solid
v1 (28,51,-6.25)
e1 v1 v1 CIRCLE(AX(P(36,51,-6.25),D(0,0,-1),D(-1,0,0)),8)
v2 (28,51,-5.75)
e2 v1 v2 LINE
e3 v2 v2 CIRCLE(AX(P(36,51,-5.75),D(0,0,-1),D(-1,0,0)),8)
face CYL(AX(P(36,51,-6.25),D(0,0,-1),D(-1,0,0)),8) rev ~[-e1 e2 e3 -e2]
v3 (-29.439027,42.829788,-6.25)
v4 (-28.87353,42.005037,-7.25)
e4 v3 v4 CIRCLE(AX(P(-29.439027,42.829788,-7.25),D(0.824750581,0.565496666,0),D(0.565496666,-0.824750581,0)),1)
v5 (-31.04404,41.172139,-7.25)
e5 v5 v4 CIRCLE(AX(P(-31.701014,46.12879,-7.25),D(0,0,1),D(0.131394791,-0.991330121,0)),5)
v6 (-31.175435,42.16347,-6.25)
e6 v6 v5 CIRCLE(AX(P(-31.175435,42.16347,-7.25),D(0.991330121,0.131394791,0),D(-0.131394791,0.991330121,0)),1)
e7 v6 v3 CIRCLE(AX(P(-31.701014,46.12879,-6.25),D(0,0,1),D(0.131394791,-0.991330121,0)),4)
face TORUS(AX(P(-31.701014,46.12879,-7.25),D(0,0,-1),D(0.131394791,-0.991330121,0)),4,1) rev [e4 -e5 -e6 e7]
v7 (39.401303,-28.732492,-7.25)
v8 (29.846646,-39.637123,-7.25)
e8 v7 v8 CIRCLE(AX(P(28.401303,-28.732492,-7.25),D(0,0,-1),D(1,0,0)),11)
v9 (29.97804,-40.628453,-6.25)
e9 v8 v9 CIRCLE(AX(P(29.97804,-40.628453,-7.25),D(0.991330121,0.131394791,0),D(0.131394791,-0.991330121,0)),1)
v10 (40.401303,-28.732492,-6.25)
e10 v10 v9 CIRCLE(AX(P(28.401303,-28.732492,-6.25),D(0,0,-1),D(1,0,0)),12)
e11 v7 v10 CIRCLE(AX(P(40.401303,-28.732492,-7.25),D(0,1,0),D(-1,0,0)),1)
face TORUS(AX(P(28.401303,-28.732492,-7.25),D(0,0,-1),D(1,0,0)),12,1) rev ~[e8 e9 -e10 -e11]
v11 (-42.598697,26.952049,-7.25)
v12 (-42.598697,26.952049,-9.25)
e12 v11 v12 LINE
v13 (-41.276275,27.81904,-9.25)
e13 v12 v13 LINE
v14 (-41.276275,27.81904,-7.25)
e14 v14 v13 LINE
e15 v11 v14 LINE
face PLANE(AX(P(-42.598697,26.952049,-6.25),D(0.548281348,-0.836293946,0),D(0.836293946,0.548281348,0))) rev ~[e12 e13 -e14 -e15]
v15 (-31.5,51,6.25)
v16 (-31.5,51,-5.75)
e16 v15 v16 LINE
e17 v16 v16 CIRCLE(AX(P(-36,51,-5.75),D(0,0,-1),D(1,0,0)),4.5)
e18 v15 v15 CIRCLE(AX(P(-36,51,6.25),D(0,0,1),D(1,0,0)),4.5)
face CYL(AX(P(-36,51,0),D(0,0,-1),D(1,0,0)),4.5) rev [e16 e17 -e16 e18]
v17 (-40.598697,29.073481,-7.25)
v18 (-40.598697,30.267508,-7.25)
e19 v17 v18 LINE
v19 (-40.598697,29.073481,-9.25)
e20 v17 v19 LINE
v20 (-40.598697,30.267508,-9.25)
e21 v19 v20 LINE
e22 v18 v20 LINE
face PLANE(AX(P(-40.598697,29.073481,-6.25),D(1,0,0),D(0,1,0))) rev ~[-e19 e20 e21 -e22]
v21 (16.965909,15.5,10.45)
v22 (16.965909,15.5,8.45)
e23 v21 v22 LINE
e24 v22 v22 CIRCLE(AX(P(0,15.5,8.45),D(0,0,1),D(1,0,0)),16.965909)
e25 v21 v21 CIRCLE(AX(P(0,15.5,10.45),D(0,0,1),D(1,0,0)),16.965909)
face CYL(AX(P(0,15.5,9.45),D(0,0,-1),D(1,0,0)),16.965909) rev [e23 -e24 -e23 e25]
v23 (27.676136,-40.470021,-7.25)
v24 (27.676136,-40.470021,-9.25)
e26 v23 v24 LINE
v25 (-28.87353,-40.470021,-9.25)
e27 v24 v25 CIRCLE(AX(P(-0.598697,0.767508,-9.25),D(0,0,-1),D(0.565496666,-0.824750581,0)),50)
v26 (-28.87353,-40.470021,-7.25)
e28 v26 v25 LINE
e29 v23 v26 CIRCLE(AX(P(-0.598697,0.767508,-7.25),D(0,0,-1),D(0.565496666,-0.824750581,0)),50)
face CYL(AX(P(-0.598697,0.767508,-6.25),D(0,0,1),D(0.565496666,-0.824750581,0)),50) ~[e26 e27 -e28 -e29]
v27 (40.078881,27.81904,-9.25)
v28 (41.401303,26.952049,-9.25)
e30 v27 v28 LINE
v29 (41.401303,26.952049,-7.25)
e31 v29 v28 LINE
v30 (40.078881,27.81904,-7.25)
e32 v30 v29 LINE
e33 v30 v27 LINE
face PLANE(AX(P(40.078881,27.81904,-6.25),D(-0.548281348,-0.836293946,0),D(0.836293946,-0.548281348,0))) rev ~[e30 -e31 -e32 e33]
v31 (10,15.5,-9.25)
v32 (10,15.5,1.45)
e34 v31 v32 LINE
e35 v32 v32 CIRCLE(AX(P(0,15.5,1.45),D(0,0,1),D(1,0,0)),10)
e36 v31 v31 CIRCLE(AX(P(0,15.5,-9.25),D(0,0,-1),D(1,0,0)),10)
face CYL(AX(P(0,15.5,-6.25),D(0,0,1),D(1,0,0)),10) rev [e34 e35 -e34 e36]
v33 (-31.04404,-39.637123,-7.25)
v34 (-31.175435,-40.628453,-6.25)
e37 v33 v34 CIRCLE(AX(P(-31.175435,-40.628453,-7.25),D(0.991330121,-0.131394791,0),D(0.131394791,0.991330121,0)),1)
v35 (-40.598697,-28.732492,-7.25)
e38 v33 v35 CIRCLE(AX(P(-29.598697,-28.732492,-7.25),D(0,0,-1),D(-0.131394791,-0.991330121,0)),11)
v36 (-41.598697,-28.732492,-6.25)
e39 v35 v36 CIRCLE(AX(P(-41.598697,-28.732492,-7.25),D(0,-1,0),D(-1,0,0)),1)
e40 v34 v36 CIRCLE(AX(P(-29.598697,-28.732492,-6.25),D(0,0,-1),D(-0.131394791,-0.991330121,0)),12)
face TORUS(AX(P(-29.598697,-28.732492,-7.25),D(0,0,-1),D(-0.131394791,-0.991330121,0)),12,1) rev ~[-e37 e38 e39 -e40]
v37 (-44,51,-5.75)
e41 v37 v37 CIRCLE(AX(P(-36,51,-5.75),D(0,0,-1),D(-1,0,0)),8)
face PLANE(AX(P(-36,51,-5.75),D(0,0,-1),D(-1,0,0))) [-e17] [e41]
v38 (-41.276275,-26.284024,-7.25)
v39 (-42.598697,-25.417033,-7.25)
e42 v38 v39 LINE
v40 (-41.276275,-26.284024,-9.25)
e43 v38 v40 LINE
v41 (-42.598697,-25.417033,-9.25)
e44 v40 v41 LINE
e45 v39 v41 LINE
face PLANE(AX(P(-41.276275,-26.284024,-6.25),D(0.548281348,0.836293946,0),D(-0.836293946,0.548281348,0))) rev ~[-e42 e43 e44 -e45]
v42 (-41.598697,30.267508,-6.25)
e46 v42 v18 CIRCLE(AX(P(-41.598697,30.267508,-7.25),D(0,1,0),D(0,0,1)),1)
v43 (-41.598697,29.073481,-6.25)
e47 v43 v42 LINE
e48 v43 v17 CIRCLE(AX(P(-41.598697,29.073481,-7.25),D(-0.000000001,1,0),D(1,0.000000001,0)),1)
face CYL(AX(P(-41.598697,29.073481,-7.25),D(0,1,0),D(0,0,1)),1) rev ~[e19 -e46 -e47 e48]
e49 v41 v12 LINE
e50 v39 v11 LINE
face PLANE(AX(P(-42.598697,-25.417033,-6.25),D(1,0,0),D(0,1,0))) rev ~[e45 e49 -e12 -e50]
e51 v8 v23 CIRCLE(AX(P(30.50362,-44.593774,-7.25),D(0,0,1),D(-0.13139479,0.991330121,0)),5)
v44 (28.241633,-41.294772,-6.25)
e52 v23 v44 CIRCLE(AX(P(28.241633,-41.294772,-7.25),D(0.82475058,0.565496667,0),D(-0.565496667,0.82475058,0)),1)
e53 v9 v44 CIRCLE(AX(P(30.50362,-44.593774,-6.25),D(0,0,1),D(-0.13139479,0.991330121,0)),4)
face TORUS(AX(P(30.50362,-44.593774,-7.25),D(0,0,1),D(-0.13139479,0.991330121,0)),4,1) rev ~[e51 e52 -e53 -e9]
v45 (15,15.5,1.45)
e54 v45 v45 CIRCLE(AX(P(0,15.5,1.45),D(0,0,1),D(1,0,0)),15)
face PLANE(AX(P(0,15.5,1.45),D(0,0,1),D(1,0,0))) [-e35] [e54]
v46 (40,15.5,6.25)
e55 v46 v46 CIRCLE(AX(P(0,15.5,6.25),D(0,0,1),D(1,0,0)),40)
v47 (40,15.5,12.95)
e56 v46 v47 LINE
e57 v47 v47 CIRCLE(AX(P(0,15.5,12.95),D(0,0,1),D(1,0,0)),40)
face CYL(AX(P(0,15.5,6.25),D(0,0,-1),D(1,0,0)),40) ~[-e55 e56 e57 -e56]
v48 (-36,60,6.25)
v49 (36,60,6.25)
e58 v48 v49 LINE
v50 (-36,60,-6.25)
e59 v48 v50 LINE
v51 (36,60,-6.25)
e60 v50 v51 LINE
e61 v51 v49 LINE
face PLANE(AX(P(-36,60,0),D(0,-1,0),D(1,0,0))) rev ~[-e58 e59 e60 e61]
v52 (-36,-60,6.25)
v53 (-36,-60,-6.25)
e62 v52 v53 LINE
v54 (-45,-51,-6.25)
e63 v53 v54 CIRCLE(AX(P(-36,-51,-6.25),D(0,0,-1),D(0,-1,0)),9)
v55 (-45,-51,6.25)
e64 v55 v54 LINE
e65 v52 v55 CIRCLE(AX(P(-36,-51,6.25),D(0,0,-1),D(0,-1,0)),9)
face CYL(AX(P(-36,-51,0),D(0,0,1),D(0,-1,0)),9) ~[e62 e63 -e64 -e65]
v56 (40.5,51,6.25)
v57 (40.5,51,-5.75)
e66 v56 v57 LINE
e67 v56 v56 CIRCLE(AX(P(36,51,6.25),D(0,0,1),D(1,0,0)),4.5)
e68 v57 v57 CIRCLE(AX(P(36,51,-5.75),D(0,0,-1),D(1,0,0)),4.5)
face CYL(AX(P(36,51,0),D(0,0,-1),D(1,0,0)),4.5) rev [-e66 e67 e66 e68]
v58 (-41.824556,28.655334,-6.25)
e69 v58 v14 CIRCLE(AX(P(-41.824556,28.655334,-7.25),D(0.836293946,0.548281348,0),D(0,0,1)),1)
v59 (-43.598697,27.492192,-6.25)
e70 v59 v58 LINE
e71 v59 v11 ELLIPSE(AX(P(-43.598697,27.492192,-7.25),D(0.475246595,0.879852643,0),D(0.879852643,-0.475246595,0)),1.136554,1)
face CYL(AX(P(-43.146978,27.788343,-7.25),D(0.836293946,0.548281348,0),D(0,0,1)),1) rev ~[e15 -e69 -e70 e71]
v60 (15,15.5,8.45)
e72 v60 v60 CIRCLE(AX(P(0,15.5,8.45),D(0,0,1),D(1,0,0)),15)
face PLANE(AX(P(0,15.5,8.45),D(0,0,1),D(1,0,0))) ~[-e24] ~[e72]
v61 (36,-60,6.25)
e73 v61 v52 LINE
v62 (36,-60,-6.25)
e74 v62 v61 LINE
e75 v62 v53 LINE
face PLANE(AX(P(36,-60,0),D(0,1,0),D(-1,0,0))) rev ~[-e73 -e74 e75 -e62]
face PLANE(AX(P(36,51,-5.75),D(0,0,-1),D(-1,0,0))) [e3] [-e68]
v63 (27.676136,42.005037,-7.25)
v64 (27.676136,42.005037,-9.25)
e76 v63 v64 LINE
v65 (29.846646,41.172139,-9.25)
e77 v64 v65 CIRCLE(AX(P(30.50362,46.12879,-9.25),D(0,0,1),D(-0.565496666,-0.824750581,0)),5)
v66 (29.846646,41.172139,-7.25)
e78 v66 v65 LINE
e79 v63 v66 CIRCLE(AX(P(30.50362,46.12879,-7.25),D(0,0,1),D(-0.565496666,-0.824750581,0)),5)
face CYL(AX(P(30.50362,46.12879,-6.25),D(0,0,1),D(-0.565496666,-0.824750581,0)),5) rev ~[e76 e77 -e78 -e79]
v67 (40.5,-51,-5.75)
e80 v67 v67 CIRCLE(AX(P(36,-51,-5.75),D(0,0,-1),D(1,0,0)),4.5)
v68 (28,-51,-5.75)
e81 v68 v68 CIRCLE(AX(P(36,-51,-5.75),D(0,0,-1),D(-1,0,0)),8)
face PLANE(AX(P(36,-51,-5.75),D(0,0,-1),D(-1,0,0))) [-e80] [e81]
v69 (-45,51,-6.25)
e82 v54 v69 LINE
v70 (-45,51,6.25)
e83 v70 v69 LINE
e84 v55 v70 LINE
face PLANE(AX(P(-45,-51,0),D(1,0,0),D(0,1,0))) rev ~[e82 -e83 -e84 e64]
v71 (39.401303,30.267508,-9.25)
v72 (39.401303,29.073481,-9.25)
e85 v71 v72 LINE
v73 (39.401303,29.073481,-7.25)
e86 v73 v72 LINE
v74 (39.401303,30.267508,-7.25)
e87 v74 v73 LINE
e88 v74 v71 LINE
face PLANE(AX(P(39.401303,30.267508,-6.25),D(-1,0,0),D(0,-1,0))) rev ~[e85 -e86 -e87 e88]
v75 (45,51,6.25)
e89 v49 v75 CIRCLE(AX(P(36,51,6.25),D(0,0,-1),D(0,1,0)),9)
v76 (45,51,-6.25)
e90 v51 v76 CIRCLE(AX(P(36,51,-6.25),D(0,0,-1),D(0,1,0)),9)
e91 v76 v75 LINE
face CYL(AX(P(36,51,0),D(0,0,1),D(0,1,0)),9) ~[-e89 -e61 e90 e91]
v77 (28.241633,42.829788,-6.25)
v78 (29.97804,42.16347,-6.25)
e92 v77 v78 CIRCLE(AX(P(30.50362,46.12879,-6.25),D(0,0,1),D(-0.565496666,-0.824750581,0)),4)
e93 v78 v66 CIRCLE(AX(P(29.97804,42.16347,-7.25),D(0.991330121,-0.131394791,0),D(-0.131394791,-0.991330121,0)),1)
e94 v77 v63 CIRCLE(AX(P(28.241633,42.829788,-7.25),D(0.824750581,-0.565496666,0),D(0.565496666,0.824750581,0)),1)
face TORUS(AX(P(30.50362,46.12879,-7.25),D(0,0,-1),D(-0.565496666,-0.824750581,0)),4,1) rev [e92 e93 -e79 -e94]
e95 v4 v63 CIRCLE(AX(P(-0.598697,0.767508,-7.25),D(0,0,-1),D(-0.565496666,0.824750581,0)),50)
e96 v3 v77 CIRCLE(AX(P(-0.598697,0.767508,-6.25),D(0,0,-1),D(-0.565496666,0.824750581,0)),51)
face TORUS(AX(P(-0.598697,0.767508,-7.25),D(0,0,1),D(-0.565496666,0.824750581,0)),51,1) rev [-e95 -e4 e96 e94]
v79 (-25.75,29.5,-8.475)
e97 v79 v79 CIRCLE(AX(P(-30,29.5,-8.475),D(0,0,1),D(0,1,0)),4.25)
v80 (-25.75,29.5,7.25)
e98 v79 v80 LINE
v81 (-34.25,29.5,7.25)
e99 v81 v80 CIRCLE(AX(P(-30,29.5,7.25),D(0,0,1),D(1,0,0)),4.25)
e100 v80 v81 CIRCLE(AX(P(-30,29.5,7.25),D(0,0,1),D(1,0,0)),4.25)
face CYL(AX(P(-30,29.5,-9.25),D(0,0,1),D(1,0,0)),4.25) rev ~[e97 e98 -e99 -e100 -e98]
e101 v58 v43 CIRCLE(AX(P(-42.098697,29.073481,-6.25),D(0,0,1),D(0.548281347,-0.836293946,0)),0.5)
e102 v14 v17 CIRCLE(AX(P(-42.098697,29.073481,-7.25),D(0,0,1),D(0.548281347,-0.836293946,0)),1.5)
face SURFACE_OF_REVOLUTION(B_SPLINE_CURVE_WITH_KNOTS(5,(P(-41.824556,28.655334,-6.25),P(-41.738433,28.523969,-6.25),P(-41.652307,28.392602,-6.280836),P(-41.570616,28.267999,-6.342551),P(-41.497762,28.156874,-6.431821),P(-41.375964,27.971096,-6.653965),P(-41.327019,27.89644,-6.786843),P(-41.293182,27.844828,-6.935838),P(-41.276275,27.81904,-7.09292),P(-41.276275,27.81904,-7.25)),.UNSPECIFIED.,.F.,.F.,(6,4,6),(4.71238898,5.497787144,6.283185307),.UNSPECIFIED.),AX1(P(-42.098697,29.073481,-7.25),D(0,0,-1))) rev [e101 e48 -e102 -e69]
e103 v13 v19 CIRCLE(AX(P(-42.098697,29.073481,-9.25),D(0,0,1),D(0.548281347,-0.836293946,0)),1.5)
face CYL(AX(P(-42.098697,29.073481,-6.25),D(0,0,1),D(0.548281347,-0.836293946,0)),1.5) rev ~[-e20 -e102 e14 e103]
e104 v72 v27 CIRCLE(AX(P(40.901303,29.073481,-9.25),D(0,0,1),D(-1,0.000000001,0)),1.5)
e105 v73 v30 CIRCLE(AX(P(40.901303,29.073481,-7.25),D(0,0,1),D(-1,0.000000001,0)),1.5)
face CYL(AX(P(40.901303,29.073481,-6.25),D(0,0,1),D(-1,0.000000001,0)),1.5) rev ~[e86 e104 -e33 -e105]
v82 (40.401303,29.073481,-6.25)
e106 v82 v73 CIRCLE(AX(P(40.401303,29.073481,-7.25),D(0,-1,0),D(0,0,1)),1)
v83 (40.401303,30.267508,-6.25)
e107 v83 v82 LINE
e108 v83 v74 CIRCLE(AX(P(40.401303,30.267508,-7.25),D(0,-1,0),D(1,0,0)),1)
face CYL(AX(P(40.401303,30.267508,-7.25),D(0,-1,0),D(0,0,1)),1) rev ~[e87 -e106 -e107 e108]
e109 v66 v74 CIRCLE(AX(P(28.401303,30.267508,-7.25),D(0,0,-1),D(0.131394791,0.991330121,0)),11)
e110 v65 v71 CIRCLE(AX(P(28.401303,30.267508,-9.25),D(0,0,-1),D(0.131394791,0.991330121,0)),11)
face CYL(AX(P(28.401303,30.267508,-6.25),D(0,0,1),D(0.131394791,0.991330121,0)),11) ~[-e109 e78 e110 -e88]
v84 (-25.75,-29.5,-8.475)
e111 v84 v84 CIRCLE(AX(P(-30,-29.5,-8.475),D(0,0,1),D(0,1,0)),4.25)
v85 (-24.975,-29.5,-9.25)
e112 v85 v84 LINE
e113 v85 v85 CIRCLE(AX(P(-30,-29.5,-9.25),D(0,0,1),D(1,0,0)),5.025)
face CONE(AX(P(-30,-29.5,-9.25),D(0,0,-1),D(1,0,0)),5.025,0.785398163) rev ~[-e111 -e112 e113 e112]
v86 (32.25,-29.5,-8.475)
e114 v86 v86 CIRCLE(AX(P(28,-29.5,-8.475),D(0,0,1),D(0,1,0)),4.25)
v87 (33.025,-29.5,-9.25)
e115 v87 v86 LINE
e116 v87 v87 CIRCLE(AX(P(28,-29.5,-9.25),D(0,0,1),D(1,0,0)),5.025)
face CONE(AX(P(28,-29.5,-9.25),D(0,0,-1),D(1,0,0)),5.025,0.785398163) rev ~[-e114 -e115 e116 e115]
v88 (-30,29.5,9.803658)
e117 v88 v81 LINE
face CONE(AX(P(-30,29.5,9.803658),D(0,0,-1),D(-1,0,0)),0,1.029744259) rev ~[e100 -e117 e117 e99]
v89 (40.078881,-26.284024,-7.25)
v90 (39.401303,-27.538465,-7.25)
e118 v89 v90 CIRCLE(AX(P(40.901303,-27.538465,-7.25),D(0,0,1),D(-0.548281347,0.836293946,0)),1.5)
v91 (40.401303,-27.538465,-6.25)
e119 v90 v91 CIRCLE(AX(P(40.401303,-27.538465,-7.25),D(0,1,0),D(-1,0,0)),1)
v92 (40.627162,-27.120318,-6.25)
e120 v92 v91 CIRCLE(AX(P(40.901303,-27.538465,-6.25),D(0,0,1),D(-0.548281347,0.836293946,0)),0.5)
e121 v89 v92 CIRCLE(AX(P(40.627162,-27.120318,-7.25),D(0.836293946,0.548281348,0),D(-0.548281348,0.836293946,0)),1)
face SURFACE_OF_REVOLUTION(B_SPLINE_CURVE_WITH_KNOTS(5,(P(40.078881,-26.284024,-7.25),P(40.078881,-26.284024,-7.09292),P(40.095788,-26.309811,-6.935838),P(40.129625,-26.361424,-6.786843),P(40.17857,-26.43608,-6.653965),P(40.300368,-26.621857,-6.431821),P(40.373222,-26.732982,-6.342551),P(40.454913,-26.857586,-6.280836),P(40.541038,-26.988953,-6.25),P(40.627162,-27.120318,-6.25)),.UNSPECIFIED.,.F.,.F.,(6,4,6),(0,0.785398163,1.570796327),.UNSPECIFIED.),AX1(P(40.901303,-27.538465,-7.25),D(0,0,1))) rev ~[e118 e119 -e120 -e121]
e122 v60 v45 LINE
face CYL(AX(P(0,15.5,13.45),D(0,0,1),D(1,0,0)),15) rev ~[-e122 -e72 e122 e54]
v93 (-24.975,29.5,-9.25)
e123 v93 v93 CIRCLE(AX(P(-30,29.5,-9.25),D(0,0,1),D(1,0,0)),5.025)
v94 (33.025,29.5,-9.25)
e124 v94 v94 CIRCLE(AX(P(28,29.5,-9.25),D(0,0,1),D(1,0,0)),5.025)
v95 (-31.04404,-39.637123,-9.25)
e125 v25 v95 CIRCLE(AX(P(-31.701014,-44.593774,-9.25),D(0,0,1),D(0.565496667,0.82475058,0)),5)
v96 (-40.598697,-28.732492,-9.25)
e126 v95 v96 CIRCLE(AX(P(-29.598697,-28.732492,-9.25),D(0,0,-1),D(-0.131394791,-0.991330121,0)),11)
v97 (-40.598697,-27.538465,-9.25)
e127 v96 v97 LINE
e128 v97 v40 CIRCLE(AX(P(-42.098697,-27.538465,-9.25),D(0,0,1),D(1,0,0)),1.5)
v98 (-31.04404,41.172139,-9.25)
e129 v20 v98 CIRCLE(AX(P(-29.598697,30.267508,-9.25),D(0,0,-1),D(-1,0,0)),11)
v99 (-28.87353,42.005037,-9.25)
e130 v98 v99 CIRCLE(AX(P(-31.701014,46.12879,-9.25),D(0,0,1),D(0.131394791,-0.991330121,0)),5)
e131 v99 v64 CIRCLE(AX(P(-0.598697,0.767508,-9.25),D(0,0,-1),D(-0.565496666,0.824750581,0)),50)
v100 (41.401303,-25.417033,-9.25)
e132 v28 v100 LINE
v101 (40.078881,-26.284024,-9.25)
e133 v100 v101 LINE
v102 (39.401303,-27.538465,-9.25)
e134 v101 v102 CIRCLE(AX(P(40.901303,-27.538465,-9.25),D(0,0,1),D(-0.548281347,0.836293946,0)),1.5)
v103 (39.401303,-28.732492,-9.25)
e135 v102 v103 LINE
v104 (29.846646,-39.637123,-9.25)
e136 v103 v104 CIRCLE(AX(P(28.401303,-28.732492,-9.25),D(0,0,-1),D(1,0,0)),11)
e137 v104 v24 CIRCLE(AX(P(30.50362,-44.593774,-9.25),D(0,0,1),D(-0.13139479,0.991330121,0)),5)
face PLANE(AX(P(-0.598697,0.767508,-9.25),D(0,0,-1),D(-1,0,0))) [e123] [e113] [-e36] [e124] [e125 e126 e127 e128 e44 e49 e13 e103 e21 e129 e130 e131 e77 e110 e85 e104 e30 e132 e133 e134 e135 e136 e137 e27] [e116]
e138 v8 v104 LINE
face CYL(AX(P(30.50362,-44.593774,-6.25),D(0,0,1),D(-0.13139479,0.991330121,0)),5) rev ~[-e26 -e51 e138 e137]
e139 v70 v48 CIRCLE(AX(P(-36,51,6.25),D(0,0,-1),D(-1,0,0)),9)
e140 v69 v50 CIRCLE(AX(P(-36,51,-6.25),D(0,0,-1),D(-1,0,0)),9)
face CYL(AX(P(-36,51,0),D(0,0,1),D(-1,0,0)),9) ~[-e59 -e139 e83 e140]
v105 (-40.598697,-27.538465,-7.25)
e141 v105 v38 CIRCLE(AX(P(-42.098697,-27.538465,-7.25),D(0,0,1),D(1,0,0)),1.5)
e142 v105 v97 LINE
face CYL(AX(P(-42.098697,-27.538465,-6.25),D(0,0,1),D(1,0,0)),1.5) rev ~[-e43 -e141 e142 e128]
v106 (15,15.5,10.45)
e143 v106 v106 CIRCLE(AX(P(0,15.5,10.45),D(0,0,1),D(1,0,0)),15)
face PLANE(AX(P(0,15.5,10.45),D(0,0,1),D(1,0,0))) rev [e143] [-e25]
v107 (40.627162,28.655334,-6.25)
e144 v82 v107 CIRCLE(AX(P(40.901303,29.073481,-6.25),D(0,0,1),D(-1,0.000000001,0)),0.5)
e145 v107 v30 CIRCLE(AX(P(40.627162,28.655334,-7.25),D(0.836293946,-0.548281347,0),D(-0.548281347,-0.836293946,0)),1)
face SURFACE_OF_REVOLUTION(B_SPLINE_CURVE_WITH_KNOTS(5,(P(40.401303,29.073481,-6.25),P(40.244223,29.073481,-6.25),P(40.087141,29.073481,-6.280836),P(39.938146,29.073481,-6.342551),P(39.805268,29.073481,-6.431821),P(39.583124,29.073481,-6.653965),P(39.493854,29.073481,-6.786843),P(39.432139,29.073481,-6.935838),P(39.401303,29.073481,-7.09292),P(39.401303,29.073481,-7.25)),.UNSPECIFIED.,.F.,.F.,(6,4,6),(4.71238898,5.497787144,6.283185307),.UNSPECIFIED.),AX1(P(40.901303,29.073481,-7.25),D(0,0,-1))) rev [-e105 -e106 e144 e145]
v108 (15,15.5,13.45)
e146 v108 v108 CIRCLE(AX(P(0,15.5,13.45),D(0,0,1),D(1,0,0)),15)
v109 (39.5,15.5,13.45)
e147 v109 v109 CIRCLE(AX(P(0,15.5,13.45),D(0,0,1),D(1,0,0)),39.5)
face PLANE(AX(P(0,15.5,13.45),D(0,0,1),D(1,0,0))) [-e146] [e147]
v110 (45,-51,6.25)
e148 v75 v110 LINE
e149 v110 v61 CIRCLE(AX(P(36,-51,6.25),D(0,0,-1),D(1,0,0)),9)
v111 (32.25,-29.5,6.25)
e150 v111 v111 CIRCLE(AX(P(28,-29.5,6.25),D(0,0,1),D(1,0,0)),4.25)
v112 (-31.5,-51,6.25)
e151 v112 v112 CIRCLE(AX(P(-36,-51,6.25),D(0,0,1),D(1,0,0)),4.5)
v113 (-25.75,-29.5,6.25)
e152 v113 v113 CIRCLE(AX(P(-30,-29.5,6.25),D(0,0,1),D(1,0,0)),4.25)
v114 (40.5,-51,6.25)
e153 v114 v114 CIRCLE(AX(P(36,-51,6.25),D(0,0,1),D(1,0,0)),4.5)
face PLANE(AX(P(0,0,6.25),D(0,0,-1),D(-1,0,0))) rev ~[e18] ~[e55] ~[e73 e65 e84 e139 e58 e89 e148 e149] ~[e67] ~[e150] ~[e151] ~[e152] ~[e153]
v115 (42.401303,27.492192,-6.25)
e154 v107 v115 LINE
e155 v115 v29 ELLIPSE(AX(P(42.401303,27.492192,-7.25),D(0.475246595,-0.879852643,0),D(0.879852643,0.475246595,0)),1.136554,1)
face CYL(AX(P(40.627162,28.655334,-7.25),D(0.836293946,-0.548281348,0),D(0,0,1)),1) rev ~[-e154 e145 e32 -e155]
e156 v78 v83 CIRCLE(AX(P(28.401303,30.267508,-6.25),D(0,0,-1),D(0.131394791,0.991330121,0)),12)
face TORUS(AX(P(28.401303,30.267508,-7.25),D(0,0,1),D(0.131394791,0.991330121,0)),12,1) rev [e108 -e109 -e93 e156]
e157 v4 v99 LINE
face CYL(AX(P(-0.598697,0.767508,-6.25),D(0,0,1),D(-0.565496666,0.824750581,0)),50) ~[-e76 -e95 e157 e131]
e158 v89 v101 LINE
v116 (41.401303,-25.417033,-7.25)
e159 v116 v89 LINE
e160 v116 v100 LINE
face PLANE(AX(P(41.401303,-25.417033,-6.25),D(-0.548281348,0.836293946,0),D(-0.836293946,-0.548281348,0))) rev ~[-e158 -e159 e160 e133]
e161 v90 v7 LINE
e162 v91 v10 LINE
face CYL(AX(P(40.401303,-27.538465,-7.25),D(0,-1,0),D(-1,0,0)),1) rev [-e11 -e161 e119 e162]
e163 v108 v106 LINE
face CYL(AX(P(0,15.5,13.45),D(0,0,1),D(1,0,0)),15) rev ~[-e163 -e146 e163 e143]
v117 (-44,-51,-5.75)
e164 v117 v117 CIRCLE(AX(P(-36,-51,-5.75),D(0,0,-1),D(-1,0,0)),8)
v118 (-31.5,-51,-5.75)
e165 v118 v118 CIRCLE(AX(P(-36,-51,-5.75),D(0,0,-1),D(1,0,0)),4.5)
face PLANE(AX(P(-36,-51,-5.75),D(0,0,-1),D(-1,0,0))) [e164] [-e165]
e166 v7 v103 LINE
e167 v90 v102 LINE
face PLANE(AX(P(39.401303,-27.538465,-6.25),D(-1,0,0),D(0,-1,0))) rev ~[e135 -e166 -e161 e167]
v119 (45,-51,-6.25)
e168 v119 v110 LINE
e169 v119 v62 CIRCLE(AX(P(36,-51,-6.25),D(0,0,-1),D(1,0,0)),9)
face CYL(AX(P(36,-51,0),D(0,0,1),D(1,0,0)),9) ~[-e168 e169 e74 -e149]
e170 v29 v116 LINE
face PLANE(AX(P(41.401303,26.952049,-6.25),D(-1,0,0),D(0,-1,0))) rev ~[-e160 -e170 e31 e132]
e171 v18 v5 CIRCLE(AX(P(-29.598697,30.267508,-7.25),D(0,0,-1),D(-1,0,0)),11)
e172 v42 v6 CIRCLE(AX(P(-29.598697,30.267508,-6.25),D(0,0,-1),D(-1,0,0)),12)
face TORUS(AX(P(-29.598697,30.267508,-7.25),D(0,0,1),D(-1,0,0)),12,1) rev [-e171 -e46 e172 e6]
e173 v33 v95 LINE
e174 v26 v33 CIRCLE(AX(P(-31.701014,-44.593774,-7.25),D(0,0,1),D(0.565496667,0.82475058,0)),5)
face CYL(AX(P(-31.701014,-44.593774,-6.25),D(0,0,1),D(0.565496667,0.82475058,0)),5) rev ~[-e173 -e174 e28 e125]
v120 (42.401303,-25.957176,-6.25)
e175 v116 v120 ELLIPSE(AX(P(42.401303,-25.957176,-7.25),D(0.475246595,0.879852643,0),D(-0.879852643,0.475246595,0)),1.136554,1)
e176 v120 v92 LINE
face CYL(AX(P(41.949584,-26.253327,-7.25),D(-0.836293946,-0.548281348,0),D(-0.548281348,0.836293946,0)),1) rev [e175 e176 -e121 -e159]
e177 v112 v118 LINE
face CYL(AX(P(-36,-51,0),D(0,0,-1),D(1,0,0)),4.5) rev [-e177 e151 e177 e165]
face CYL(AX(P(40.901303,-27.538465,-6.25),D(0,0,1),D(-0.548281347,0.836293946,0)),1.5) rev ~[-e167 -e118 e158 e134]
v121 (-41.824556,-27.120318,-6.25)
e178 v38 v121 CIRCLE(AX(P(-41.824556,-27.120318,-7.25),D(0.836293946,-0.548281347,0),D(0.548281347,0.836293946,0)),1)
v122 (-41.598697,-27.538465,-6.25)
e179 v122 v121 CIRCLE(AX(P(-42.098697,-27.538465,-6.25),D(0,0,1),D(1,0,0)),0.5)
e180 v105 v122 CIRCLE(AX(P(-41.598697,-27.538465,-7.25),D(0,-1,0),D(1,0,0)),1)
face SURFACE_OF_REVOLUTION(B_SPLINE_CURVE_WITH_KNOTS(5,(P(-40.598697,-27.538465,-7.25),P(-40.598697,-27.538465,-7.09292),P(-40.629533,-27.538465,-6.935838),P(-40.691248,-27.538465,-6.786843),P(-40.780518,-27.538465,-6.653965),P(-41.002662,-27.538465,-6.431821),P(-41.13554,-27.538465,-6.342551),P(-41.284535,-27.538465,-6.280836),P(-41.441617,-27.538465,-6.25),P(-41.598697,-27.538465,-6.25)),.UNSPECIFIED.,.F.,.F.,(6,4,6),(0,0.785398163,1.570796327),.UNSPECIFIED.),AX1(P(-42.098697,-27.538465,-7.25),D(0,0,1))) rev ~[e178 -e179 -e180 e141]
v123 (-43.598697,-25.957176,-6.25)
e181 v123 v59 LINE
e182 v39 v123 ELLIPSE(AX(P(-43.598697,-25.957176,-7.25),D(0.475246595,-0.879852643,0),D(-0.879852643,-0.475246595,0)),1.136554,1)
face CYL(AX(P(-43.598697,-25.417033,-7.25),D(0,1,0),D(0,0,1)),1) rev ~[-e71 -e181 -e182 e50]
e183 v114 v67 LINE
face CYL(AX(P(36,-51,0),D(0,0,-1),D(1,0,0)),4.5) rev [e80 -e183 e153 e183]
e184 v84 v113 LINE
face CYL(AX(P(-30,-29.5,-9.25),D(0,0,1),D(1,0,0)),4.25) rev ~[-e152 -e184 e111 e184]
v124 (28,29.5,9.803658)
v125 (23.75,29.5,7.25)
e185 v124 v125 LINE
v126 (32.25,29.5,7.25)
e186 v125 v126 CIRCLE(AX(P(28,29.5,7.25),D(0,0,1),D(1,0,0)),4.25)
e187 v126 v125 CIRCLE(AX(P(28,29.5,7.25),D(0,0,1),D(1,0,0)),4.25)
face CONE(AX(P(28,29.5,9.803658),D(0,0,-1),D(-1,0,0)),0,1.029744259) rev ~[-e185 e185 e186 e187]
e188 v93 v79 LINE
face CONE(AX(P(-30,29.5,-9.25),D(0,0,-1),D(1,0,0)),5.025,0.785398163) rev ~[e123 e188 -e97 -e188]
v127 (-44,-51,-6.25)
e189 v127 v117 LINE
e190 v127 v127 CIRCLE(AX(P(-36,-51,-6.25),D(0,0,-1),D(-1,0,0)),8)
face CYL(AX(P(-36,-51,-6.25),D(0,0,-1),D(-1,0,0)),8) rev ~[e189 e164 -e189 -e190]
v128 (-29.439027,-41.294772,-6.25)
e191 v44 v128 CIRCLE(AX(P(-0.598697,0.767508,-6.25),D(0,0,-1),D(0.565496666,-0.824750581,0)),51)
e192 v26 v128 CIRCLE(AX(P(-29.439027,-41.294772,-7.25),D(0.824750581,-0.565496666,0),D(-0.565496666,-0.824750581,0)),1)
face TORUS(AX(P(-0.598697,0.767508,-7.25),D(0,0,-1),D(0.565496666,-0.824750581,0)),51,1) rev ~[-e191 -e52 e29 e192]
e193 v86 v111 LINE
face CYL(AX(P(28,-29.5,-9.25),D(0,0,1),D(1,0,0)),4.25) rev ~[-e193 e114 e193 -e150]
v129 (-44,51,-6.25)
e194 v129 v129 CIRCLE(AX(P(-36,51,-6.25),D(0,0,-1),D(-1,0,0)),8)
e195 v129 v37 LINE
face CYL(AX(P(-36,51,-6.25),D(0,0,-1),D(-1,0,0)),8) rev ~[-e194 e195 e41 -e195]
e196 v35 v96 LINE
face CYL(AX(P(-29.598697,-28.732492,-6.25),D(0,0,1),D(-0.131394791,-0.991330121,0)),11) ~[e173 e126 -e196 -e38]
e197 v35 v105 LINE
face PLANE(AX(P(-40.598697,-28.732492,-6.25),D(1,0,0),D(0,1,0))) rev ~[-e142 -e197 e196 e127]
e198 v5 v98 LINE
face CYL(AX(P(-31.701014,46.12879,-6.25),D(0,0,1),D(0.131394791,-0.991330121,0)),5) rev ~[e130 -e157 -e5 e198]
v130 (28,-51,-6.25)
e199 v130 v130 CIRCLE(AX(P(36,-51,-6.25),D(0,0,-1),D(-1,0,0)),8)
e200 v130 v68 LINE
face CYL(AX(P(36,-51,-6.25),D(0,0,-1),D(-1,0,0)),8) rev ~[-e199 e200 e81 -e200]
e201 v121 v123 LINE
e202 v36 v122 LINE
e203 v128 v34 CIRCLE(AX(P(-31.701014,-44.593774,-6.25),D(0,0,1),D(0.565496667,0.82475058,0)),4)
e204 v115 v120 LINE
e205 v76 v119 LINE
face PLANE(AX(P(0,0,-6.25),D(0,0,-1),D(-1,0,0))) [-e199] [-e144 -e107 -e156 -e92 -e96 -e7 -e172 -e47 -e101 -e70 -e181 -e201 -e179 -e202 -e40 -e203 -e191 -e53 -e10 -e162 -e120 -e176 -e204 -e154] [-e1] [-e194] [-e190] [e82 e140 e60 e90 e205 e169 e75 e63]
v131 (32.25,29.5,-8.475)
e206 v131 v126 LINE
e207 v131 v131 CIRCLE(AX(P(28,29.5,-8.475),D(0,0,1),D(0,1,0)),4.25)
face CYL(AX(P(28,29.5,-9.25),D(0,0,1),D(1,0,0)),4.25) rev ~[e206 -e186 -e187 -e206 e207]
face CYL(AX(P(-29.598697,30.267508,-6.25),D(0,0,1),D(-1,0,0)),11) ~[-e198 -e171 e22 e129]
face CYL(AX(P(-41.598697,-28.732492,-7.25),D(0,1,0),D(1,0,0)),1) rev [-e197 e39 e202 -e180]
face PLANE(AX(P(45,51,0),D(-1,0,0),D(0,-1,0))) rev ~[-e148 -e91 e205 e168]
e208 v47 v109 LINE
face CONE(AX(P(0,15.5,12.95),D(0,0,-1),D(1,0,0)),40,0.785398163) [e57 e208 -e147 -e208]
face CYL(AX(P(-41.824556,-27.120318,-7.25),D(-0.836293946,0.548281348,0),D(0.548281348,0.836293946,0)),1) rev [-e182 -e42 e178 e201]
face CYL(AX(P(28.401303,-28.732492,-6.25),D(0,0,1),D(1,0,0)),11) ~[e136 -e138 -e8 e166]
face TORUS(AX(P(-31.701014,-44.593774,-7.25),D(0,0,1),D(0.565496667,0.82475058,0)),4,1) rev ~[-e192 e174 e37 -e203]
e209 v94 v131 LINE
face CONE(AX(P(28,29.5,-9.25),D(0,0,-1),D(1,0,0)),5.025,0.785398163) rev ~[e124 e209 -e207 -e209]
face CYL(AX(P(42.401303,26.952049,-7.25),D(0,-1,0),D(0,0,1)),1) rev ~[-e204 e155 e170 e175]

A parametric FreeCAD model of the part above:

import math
import FreeCAD as App
import Part
import Sketcher
from FreeCAD import Vector


def edges_at(feature, points):
    """Names of the edges that pass closest to the given points."""
    edges = feature.Shape.Edges
    near = lambda p: min(range(len(edges)), key=lambda i: edges[i].distToShape(Part.Vertex(*p))[0])
    return sorted({f"Edge{near(p) + 1}" for p in points})

doc = App.newDocument("Part")
body = doc.addObject("PartDesign::Body", "Body")

# Sketch on XY plane
sketch1 = body.newObject("Sketcher::SketchObject", "Sketch")
sketch1.AttachmentSupport = (doc.getObject("XY_Plane"), [""])
sketch1.MapMode = "FlatFace"
sketch1.addGeometry(Part.LineSegment(Vector(-36, -60, 0), Vector(36, -60, 0)), False)
sketch1.addGeometry(Part.ArcOfCircle(Part.Circle(Vector(36, -51, 0), Vector(0, 0, 1), 9), math.radians(-90), math.radians(0)), False)
sketch1.addGeometry(Part.LineSegment(Vector(45, -51, 0), Vector(45, 51, 0)), False)
sketch1.addGeometry(Part.ArcOfCircle(Part.Circle(Vector(36, 51, 0), Vector(0, 0, 1), 9), math.radians(0), math.radians(90)), False)
sketch1.addGeometry(Part.LineSegment(Vector(36, 60, 0), Vector(-36, 60, 0)), False)
sketch1.addGeometry(Part.ArcOfCircle(Part.Circle(Vector(-36, 51, 0), Vector(0, 0, 1), 9), math.radians(90), math.radians(180)), False)
sketch1.addGeometry(Part.LineSegment(Vector(-45, 51, 0), Vector(-45, -51, 0)), False)
sketch1.addGeometry(Part.ArcOfCircle(Part.Circle(Vector(-36, -51, 0), Vector(0, 0, 1), 9), math.radians(180), math.radians(270)), False)
sketch1.addGeometry(Part.Circle(Vector(36, -51, 0), Vector(0, 0, 1), 4.5), False)
sketch1.addGeometry(Part.Circle(Vector(-36, -51, 0), Vector(0, 0, 1), 4.5), False)
sketch1.addGeometry(Part.Circle(Vector(36, 51, 0), Vector(0, 0, 1), 4.5), False)
sketch1.addGeometry(Part.Circle(Vector(-36, 51, 0), Vector(0, 0, 1), 4.5), False)
sketch1.addConstraint(Sketcher.Constraint("Tangent", 0, 2, 1, 1))
sketch1.addConstraint(Sketcher.Constraint("Tangent", 1, 2, 2, 1))
sketch1.addConstraint(Sketcher.Constraint("Tangent", 2, 2, 3, 1))
sketch1.addConstraint(Sketcher.Constraint("Tangent", 3, 2, 4, 1))
sketch1.addConstraint(Sketcher.Constraint("Tangent", 4, 2, 5, 1))
sketch1.addConstraint(Sketcher.Constraint("Tangent", 5, 2, 6, 1))
sketch1.addConstraint(Sketcher.Constraint("Tangent", 6, 2, 7, 1))
sketch1.addConstraint(Sketcher.Constraint("Tangent", 7, 2, 0, 1))
sketch1.addConstraint(Sketcher.Constraint("Horizontal", 0))
sketch1.addConstraint(Sketcher.Constraint("Vertical", 2))
sketch1.addConstraint(Sketcher.Constraint("Horizontal", 4))
sketch1.addConstraint(Sketcher.Constraint("Vertical", 6))
sketch1.addConstraint(Sketcher.Constraint("Coincident", 8, 3, 1, 3))
sketch1.addConstraint(Sketcher.Constraint("Coincident", 9, 3, 7, 3))
sketch1.addConstraint(Sketcher.Constraint("Coincident", 10, 3, 3, 3))
sketch1.addConstraint(Sketcher.Constraint("Coincident", 11, 3, 5, 3))
sketch1.addConstraint(Sketcher.Constraint("Equal", 1, 3))
sketch1.addConstraint(Sketcher.Constraint("Equal", 3, 5))
sketch1.addConstraint(Sketcher.Constraint("Equal", 5, 7))
sketch1.addConstraint(Sketcher.Constraint("Equal", 8, 9))
sketch1.addConstraint(Sketcher.Constraint("Equal", 9, 10))
sketch1.addConstraint(Sketcher.Constraint("Equal", 10, 11))
sketch1.addConstraint(Sketcher.Constraint("Symmetric", 1, 3, 5, 3, -1, 1))
sketch1.addConstraint(Sketcher.Constraint("Diameter", 8, 9.0))
sketch1.addConstraint(Sketcher.Constraint("Radius", 1, 9.0))
sketch1.addConstraint(Sketcher.Constraint("DistanceX", 0, 1, 0, 2, 72.0))
sketch1.addConstraint(Sketcher.Constraint("DistanceY", 2, 1, 2, 2, 102.0))
pad1 = body.newObject("PartDesign::Pad", "Pad")
pad1.Profile = sketch1
pad1.Length = 12.5
pad1.Midplane = True

# Sketch on XY plane
sketch2 = body.newObject("Sketcher::SketchObject", "Sketch001")
sketch2.AttachmentSupport = (doc.getObject("XY_Plane"), [""])
sketch2.MapMode = "FlatFace"
sketch2.AttachmentOffset = App.Placement(Vector(0, 0, 6.25), App.Rotation())
sketch2.addGeometry(Part.Circle(Vector(0, 16, 0), Vector(0, 0, 1), 40), False)
sketch2.addConstraint(Sketcher.Constraint("PointOnObject", 0, 3, -2))
sketch2.addConstraint(Sketcher.Constraint("Diameter", 0, 80.0))
sketch2.addConstraint(Sketcher.Constraint("DistanceY", -1, 1, 0, 3, 15.5))
pad2 = body.newObject("PartDesign::Pad", "Pad001")
pad2.Profile = sketch2
pad2.Length = 7.2

# Sketch on XY plane
sketch3 = body.newObject("Sketcher::SketchObject", "Sketch002")
sketch3.AttachmentSupport = (doc.getObject("XY_Plane"), [""])
sketch3.MapMode = "FlatFace"
sketch3.AttachmentOffset = App.Placement(Vector(0, 0, 13.45), App.Rotation())
sketch3.addGeometry(Part.Circle(Vector(0, 16, 0), Vector(0, 0, 1), 10), False)
sketch3.addConstraint(Sketcher.Constraint("PointOnObject", 0, 3, -2))
sketch3.addConstraint(Sketcher.Constraint("Diameter", 0, 20.0))
sketch3.addConstraint(Sketcher.Constraint("DistanceY", -1, 1, 0, 3, 15.5))
pocket1 = body.newObject("PartDesign::Pocket", "Pocket")
pocket1.Profile = sketch3
pocket1.Length = 19.7

# Sketch on XY plane
sketch4 = body.newObject("Sketcher::SketchObject", "Sketch003")
sketch4.AttachmentSupport = (doc.getObject("XY_Plane"), [""])
sketch4.MapMode = "FlatFace"
sketch4.AttachmentOffset = App.Placement(Vector(0, 0, -6.25), App.Rotation())
sketch4.addGeometry(Part.ArcOfCircle(Part.Circle(Vector(-0.6, 0.8, 0), Vector(0, 0, 1), 50), math.radians(-124), math.radians(-56)), False)
sketch4.addGeometry(Part.ArcOfCircle(Part.Circle(Vector(-31.7, -44.6, 0), Vector(0, 0, 1), 5), math.radians(56), math.radians(82)), False)
sketch4.addGeometry(Part.ArcOfCircle(Part.Circle(Vector(-29.6, -28.7, 0), Vector(0, 0, 1), 11), math.radians(180), math.radians(262)), False)
sketch4.addGeometry(Part.LineSegment(Vector(-40.6, -28.7, 0), Vector(-40.6, -27.5, 0)), False)
sketch4.addGeometry(Part.ArcOfCircle(Part.Circle(Vector(-42.1, -27.5, 0), Vector(0, 0, 1), 1.5), math.radians(0), math.radians(57)), False)
sketch4.addGeometry(Part.LineSegment(Vector(-41.3, -26.3, 0), Vector(-42.6, -25.4, 0)), False)
sketch4.addGeometry(Part.LineSegment(Vector(-42.6, -25.4, 0), Vector(-42.6, 27, 0)), False)
sketch4.addGeometry(Part.LineSegment(Vector(-42.6, 27, 0), Vector(-41.3, 27.8, 0)), False)
sketch4.addGeometry(Part.ArcOfCircle(Part.Circle(Vector(-42.1, 29.1, 0), Vector(0, 0, 1), 1.5), math.radians(-57), math.radians(0)), False)
sketch4.addGeometry(Part.LineSegment(Vector(-40.6, 29.1, 0), Vector(-40.6, 30.3, 0)), False)
sketch4.addGeometry(Part.ArcOfCircle(Part.Circle(Vector(-29.6, 30.3, 0), Vector(0, 0, 1), 11), math.radians(98), math.radians(180)), False)
sketch4.addGeometry(Part.ArcOfCircle(Part.Circle(Vector(-31.7, 46.1, 0), Vector(0, 0, 1), 5), math.radians(-82), math.radians(-56)), False)
sketch4.addGeometry(Part.ArcOfCircle(Part.Circle(Vector(-0.6, 0.8, 0), Vector(0, 0, 1), 50), math.radians(56), math.radians(124)), False)
sketch4.addGeometry(Part.ArcOfCircle(Part.Circle(Vector(30.5, 46.1, 0), Vector(0, 0, 1), 5), math.radians(-124), math.radians(-98)), False)
sketch4.addGeometry(Part.ArcOfCircle(Part.Circle(Vector(28.4, 30.3, 0), Vector(0, 0, 1), 11), math.radians(0), math.radians(82)), False)
sketch4.addGeometry(Part.LineSegment(Vector(39.4, 30.3, 0), Vector(39.4, 29.1, 0)), False)
sketch4.addGeometry(Part.ArcOfCircle(Part.Circle(Vector(40.9, 29.1, 0), Vector(0, 0, 1), 1.5), math.radians(180), math.radians(237)), False)
sketch4.addGeometry(Part.LineSegment(Vector(40.1, 27.8, 0), Vector(41.4, 27, 0)), False)
sketch4.addGeometry(Part.LineSegment(Vector(41.4, 27, 0), Vector(41.4, -25.4, 0)), False)
sketch4.addGeometry(Part.LineSegment(Vector(41.4, -25.4, 0), Vector(40.1, -26.3, 0)), False)
sketch4.addGeometry(Part.ArcOfCircle(Part.Circle(Vector(40.9, -27.5, 0), Vector(0, 0, 1), 1.5), math.radians(123), math.radians(180)), False)
sketch4.addGeometry(Part.LineSegment(Vector(39.4, -27.5, 0), Vector(39.4, -28.7, 0)), False)
sketch4.addGeometry(Part.ArcOfCircle(Part.Circle(Vector(28.4, -28.7, 0), Vector(0, 0, 1), 11), math.radians(-82), math.radians(0)), False)
sketch4.addGeometry(Part.ArcOfCircle(Part.Circle(Vector(30.5, -44.6, 0), Vector(0, 0, 1), 5), math.radians(98), math.radians(124)), False)
sketch4.addGeometry(Part.Circle(Vector(0, 15.5, 0), Vector(0, 0, 1), 10), False)
sketch4.addConstraint(Sketcher.Constraint("Tangent", 0, 1, 1, 1))
sketch4.addConstraint(Sketcher.Constraint("Tangent", 1, 2, 2, 2))
sketch4.addConstraint(Sketcher.Constraint("Tangent", 2, 1, 3, 1))
sketch4.addConstraint(Sketcher.Constraint("Tangent", 3, 2, 4, 1))
sketch4.addConstraint(Sketcher.Constraint("Tangent", 4, 2, 5, 1))
sketch4.addConstraint(Sketcher.Constraint("Coincident", 5, 2, 6, 1))
sketch4.addConstraint(Sketcher.Constraint("Coincident", 6, 2, 7, 1))
sketch4.addConstraint(Sketcher.Constraint("Tangent", 7, 2, 8, 1))
sketch4.addConstraint(Sketcher.Constraint("Tangent", 8, 2, 9, 1))
sketch4.addConstraint(Sketcher.Constraint("Tangent", 9, 2, 10, 2))
sketch4.addConstraint(Sketcher.Constraint("Tangent", 10, 1, 11, 1))
sketch4.addConstraint(Sketcher.Constraint("Tangent", 11, 2, 12, 2))
sketch4.addConstraint(Sketcher.Constraint("Tangent", 12, 1, 13, 1))
sketch4.addConstraint(Sketcher.Constraint("Tangent", 13, 2, 14, 2))
sketch4.addConstraint(Sketcher.Constraint("Tangent", 14, 1, 15, 1))
sketch4.addConstraint(Sketcher.Constraint("Tangent", 15, 2, 16, 1))
sketch4.addConstraint(Sketcher.Constraint("Tangent", 16, 2, 17, 1))
sketch4.addConstraint(Sketcher.Constraint("Coincident", 17, 2, 18, 1))
sketch4.addConstraint(Sketcher.Constraint("Coincident", 18, 2, 19, 1))
sketch4.addConstraint(Sketcher.Constraint("Tangent", 19, 2, 20, 1))
sketch4.addConstraint(Sketcher.Constraint("Tangent", 20, 2, 21, 1))
sketch4.addConstraint(Sketcher.Constraint("Tangent", 21, 2, 22, 2))
sketch4.addConstraint(Sketcher.Constraint("Tangent", 22, 1, 23, 1))
sketch4.addConstraint(Sketcher.Constraint("Tangent", 23, 2, 0, 2))
sketch4.addConstraint(Sketcher.Constraint("Vertical", 3))
sketch4.addConstraint(Sketcher.Constraint("Vertical", 6))
sketch4.addConstraint(Sketcher.Constraint("Vertical", 9))
sketch4.addConstraint(Sketcher.Constraint("Vertical", 15))
sketch4.addConstraint(Sketcher.Constraint("Vertical", 18))
sketch4.addConstraint(Sketcher.Constraint("Vertical", 21))
sketch4.addConstraint(Sketcher.Constraint("Coincident", 12, 3, 0, 3))
sketch4.addConstraint(Sketcher.Constraint("Equal", 4, 8))
sketch4.addConstraint(Sketcher.Constraint("Equal", 2, 10))
sketch4.addConstraint(Sketcher.Constraint("Equal", 1, 11))
sketch4.addConstraint(Sketcher.Constraint("Equal", 0, 12))
sketch4.addConstraint(Sketcher.Constraint("Equal", 11, 13))
sketch4.addConstraint(Sketcher.Constraint("Equal", 10, 14))
sketch4.addConstraint(Sketcher.Constraint("Equal", 8, 16))
sketch4.addConstraint(Sketcher.Constraint("Equal", 16, 20))
sketch4.addConstraint(Sketcher.Constraint("Equal", 14, 22))
sketch4.addConstraint(Sketcher.Constraint("Equal", 13, 23))
sketch4.addConstraint(Sketcher.Constraint("PointOnObject", 24, 3, -2))
sketch4.addConstraint(Sketcher.Constraint("Parallel", 5, 17))
sketch4.addConstraint(Sketcher.Constraint("Parallel", 7, 19))
sketch4.addConstraint(Sketcher.Constraint("Horizontal", 11, 3, 13, 3))
sketch4.addConstraint(Sketcher.Constraint("Horizontal", 10, 3, 14, 3))
sketch4.addConstraint(Sketcher.Constraint("Horizontal", 8, 3, 16, 3))
sketch4.addConstraint(Sketcher.Constraint("Horizontal", 4, 3, 20, 3))
sketch4.addConstraint(Sketcher.Constraint("Horizontal", 2, 3, 22, 3))
sketch4.addConstraint(Sketcher.Constraint("Horizontal", 1, 3, 23, 3))
sketch4.addConstraint(Sketcher.Constraint("Horizontal", 7, 2, 16, 2))
sketch4.addConstraint(Sketcher.Constraint("Horizontal", 6, 2, 17, 2))
sketch4.addConstraint(Sketcher.Constraint("Vertical", 4, 3, 8, 3))
sketch4.addConstraint(Sketcher.Constraint("Vertical", 1, 3, 11, 3))
sketch4.addConstraint(Sketcher.Constraint("Equal", 3, 9))
sketch4.addConstraint(Sketcher.Constraint("Diameter", 24, 20.0))
sketch4.addConstraint(Sketcher.Constraint("Radius", 0, 50.0))
sketch4.addConstraint(Sketcher.Constraint("Radius", 1, 5.0))
sketch4.addConstraint(Sketcher.Constraint("Radius", 2, 11.0))
sketch4.addConstraint(Sketcher.Constraint("Radius", 4, 1.5))
sketch4.addConstraint(Sketcher.Constraint("DistanceX", 2, 3, 0, 3, 29.0))
sketch4.addConstraint(Sketcher.Constraint("DistanceY", 2, 3, 10, 3, 59.0))
sketch4.addConstraint(Sketcher.Constraint("DistanceX", 5, 2, 3, 2, 2.0))
sketch4.addConstraint(Sketcher.Constraint("DistanceY", -1, 1, 24, 3, 15.5))
sketch4.addConstraint(Sketcher.Constraint("DistanceY", 6, 1, 6, 2, 52.369082))
sketch4.addConstraint(Sketcher.Constraint("DistanceY", 1, 2, 4, 2, 13.353099))
sketch4.addConstraint(Sketcher.Constraint("DistanceY", -1, 1, 0, 3, 0.767508))
sketch4.addConstraint(Sketcher.Constraint("DistanceX", -1, 1, 13, 3, 30.50362))
pad3 = body.newObject("PartDesign::Pad", "Pad002")
pad3.Profile = sketch4
pad3.Length = 3
pad3.Reversed = True
doc.recompute()

fillet = body.newObject("PartDesign::Fillet", "Fillet")
fillet.Base = (pad3, edges_at(pad3, [
    (-0.599, -49.232, -6.25),
    (-29.91, -39.926, -6.25),
    (-37.872, -35.982, -6.25),
    (-40.599, -28.135, -6.25),
    (-40.779, -26.826, -6.25),
    (-41.937, -25.851, -6.25),
    (28.712, 41.461, -6.25),
    (36.675, 37.517, -6.25),
    (39.401, 29.67, -6.25),
    (39.582, 28.361, -6.25),
    (40.74, 27.386, -6.25),
    (41.401, 0.768, -6.25),
    (28.712, -39.926, -6.25),
    (36.675, -35.982, -6.25),
    (39.401, -28.135, -6.25),
    (39.582, -26.826, -6.25),
    (40.74, -25.851, -6.25),
    (-0.599, 50.768, -6.25),
    (-29.91, 41.461, -6.25),
    (-37.872, 37.517, -6.25),
    (-40.599, 29.67, -6.25),
    (-40.779, 28.361, -6.25),
    (-41.937, 27.386, -6.25),
    (-42.599, 0.768, -6.25),
]))
fillet.Radius = 1

# Sketch on XY plane
sketch5 = body.newObject("Sketcher::SketchObject", "Sketch004")
sketch5.AttachmentSupport = (doc.getObject("XY_Plane"), [""])
sketch5.MapMode = "FlatFace"
sketch5.AttachmentOffset = App.Placement(Vector(0, 0, -9.25), App.Rotation())
sketch5.addGeometry(Part.Circle(Vector(28, 29.5, 0), Vector(0, 0, 1), 4.2), False)
sketch5.addGeometry(Part.Circle(Vector(-30, 29.5, 0), Vector(0, 0, 1), 4.2), False)
sketch5.addGeometry(Part.Circle(Vector(-30, -29.5, 0), Vector(0, 0, 1), 4.2), False)
sketch5.addGeometry(Part.Circle(Vector(28, -29.5, 0), Vector(0, 0, 1), 4.2), False)
sketch5.addConstraint(Sketcher.Constraint("Equal", 0, 1))
sketch5.addConstraint(Sketcher.Constraint("Equal", 1, 2))
sketch5.addConstraint(Sketcher.Constraint("Equal", 2, 3))
sketch5.addConstraint(Sketcher.Constraint("Symmetric", 1, 3, 2, 3, -1))
sketch5.addConstraint(Sketcher.Constraint("Symmetric", 0, 3, 3, 3, -1))
sketch5.addConstraint(Sketcher.Constraint("Horizontal", 0, 3, 1, 3))
sketch5.addConstraint(Sketcher.Constraint("Diameter", 0, 8.5))
sketch5.addConstraint(Sketcher.Constraint("DistanceX", -1, 1, 0, 3, 28.0))
sketch5.addConstraint(Sketcher.Constraint("DistanceX", 1, 3, -1, 1, 30.0))
sketch5.addConstraint(Sketcher.Constraint("DistanceY", 2, 3, 1, 3, 59.0))
doc.recompute()
hole = body.newObject("PartDesign::Hole", "Hole")
hole.Profile = sketch5
hole.ThreadType = "None"
hole.Diameter = 8.5
hole.DepthType = "Dimension"
hole.Depth = 16.5
hole.DrillPoint = "Angled"
hole.DrillPointAngle = 118
hole.HoleCutType = "Countersink"
hole.HoleCutDiameter = 10.05
hole.HoleCutCountersinkAngle = 90
hole.Reversed = True

# Sketch on XY plane
sketch6 = body.newObject("Sketcher::SketchObject", "Sketch005")
sketch6.AttachmentSupport = (doc.getObject("XY_Plane"), [""])
sketch6.MapMode = "FlatFace"
sketch6.AttachmentOffset = App.Placement(Vector(0, 0, -6.25), App.Rotation())
sketch6.addGeometry(Part.Circle(Vector(36, -51, 0), Vector(0, 0, 1), 8), False)
sketch6.addGeometry(Part.Circle(Vector(-36, -51, 0), Vector(0, 0, 1), 8), False)
sketch6.addGeometry(Part.Circle(Vector(-36, 51, 0), Vector(0, 0, 1), 8), False)
sketch6.addGeometry(Part.Circle(Vector(36, 51, 0), Vector(0, 0, 1), 8), False)
sketch6.addConstraint(Sketcher.Constraint("Equal", 0, 1))
sketch6.addConstraint(Sketcher.Constraint("Equal", 1, 2))
sketch6.addConstraint(Sketcher.Constraint("Equal", 2, 3))
sketch6.addConstraint(Sketcher.Constraint("Symmetric", 0, 3, 2, 3, -1, 1))
sketch6.addConstraint(Sketcher.Constraint("Symmetric", 1, 3, 3, 3, -1, 1))
sketch6.addConstraint(Sketcher.Constraint("Symmetric", 0, 3, 1, 3, -2))
sketch6.addConstraint(Sketcher.Constraint("Diameter", 0, 16.0))
sketch6.addConstraint(Sketcher.Constraint("DistanceX", -1, 1, 0, 3, 36.0))
sketch6.addConstraint(Sketcher.Constraint("DistanceY", 0, 3, -1, 1, 51.0))
pocket2 = body.newObject("PartDesign::Pocket", "Pocket001")
pocket2.Profile = sketch6
pocket2.Length = 0.5
pocket2.Reversed = True

# Sketch on XY plane
sketch7 = body.newObject("Sketcher::SketchObject", "Sketch006")
sketch7.AttachmentSupport = (doc.getObject("XY_Plane"), [""])
sketch7.MapMode = "FlatFace"
sketch7.AttachmentOffset = App.Placement(Vector(0, 0, 13.45), App.Rotation())
sketch7.addGeometry(Part.Circle(Vector(0, 16, 0), Vector(0, 0, 1), 15), False)
sketch7.addConstraint(Sketcher.Constraint("PointOnObject", 0, 3, -2))
sketch7.addConstraint(Sketcher.Constraint("Diameter", 0, 30.0))
sketch7.addConstraint(Sketcher.Constraint("DistanceY", -1, 1, 0, 3, 15.5))
pocket3 = body.newObject("PartDesign::Pocket", "Pocket002")
pocket3.Profile = sketch7
pocket3.Length = 12

# Sketch on YZ plane
sketch8 = body.newObject("Sketcher::SketchObject", "Sketch007")
sketch8.AttachmentSupport = (doc.getObject("YZ_Plane"), [""])
sketch8.MapMode = "FlatFace"
sketch8.addGeometry(Part.LineSegment(Vector(32.5, 10.4, 0), Vector(27.5, 10.4, 0)), False)
sketch8.addGeometry(Part.LineSegment(Vector(27.5, 10.4, 0), Vector(27.5, 8.4, 0)), False)
sketch8.addGeometry(Part.LineSegment(Vector(27.5, 8.4, 0), Vector(32.5, 8.4, 0)), False)
sketch8.addGeometry(Part.LineSegment(Vector(32.5, 8.4, 0), Vector(32.5, 10.4, 0)), False)
sketch8.addGeometry(Part.LineSegment(Vector(15.5, 8.4, 0), Vector(15.5, 10.4, 0)), True)  # axis
sketch8.addConstraint(Sketcher.Constraint("Coincident", 0, 2, 1, 1))
sketch8.addConstraint(Sketcher.Constraint("Coincident", 1, 2, 2, 1))
sketch8.addConstraint(Sketcher.Constraint("Coincident", 2, 2, 3, 1))
sketch8.addConstraint(Sketcher.Constraint("Coincident", 3, 2, 0, 1))
sketch8.addConstraint(Sketcher.Constraint("Horizontal", 0))
sketch8.addConstraint(Sketcher.Constraint("Vertical", 1))
sketch8.addConstraint(Sketcher.Constraint("Horizontal", 2))
sketch8.addConstraint(Sketcher.Constraint("Vertical", 3))
sketch8.addConstraint(Sketcher.Constraint("Vertical", 4))
sketch8.addConstraint(Sketcher.Constraint("Horizontal", 2, 2, 4, 1))
sketch8.addConstraint(Sketcher.Constraint("Horizontal", 3, 2, 4, 2))
sketch8.addConstraint(Sketcher.Constraint("DistanceX", 0, 2, 0, 1, 5.0))
sketch8.addConstraint(Sketcher.Constraint("DistanceY", 1, 2, 1, 1, 2.0))
sketch8.addConstraint(Sketcher.Constraint("DistanceX", -1, 1, 4, 1, 15.5))
sketch8.addConstraint(Sketcher.Constraint("DistanceY", -1, 1, 0, 2, 10.45))
sketch8.addConstraint(Sketcher.Constraint("DistanceX", -1, 1, 0, 2, 27.465909))
groove = body.newObject("PartDesign::Groove", "Groove")
groove.Profile = sketch8
groove.ReferenceAxis = (sketch8, ["Axis0"])
groove.Angle = 360
doc.recompute()

chamfer = body.newObject("PartDesign::Chamfer", "Chamfer")
chamfer.Base = (groove, edges_at(groove, [(-40, 15.5, 13.45)]))
chamfer.Size = 0.5

doc.recompute()
